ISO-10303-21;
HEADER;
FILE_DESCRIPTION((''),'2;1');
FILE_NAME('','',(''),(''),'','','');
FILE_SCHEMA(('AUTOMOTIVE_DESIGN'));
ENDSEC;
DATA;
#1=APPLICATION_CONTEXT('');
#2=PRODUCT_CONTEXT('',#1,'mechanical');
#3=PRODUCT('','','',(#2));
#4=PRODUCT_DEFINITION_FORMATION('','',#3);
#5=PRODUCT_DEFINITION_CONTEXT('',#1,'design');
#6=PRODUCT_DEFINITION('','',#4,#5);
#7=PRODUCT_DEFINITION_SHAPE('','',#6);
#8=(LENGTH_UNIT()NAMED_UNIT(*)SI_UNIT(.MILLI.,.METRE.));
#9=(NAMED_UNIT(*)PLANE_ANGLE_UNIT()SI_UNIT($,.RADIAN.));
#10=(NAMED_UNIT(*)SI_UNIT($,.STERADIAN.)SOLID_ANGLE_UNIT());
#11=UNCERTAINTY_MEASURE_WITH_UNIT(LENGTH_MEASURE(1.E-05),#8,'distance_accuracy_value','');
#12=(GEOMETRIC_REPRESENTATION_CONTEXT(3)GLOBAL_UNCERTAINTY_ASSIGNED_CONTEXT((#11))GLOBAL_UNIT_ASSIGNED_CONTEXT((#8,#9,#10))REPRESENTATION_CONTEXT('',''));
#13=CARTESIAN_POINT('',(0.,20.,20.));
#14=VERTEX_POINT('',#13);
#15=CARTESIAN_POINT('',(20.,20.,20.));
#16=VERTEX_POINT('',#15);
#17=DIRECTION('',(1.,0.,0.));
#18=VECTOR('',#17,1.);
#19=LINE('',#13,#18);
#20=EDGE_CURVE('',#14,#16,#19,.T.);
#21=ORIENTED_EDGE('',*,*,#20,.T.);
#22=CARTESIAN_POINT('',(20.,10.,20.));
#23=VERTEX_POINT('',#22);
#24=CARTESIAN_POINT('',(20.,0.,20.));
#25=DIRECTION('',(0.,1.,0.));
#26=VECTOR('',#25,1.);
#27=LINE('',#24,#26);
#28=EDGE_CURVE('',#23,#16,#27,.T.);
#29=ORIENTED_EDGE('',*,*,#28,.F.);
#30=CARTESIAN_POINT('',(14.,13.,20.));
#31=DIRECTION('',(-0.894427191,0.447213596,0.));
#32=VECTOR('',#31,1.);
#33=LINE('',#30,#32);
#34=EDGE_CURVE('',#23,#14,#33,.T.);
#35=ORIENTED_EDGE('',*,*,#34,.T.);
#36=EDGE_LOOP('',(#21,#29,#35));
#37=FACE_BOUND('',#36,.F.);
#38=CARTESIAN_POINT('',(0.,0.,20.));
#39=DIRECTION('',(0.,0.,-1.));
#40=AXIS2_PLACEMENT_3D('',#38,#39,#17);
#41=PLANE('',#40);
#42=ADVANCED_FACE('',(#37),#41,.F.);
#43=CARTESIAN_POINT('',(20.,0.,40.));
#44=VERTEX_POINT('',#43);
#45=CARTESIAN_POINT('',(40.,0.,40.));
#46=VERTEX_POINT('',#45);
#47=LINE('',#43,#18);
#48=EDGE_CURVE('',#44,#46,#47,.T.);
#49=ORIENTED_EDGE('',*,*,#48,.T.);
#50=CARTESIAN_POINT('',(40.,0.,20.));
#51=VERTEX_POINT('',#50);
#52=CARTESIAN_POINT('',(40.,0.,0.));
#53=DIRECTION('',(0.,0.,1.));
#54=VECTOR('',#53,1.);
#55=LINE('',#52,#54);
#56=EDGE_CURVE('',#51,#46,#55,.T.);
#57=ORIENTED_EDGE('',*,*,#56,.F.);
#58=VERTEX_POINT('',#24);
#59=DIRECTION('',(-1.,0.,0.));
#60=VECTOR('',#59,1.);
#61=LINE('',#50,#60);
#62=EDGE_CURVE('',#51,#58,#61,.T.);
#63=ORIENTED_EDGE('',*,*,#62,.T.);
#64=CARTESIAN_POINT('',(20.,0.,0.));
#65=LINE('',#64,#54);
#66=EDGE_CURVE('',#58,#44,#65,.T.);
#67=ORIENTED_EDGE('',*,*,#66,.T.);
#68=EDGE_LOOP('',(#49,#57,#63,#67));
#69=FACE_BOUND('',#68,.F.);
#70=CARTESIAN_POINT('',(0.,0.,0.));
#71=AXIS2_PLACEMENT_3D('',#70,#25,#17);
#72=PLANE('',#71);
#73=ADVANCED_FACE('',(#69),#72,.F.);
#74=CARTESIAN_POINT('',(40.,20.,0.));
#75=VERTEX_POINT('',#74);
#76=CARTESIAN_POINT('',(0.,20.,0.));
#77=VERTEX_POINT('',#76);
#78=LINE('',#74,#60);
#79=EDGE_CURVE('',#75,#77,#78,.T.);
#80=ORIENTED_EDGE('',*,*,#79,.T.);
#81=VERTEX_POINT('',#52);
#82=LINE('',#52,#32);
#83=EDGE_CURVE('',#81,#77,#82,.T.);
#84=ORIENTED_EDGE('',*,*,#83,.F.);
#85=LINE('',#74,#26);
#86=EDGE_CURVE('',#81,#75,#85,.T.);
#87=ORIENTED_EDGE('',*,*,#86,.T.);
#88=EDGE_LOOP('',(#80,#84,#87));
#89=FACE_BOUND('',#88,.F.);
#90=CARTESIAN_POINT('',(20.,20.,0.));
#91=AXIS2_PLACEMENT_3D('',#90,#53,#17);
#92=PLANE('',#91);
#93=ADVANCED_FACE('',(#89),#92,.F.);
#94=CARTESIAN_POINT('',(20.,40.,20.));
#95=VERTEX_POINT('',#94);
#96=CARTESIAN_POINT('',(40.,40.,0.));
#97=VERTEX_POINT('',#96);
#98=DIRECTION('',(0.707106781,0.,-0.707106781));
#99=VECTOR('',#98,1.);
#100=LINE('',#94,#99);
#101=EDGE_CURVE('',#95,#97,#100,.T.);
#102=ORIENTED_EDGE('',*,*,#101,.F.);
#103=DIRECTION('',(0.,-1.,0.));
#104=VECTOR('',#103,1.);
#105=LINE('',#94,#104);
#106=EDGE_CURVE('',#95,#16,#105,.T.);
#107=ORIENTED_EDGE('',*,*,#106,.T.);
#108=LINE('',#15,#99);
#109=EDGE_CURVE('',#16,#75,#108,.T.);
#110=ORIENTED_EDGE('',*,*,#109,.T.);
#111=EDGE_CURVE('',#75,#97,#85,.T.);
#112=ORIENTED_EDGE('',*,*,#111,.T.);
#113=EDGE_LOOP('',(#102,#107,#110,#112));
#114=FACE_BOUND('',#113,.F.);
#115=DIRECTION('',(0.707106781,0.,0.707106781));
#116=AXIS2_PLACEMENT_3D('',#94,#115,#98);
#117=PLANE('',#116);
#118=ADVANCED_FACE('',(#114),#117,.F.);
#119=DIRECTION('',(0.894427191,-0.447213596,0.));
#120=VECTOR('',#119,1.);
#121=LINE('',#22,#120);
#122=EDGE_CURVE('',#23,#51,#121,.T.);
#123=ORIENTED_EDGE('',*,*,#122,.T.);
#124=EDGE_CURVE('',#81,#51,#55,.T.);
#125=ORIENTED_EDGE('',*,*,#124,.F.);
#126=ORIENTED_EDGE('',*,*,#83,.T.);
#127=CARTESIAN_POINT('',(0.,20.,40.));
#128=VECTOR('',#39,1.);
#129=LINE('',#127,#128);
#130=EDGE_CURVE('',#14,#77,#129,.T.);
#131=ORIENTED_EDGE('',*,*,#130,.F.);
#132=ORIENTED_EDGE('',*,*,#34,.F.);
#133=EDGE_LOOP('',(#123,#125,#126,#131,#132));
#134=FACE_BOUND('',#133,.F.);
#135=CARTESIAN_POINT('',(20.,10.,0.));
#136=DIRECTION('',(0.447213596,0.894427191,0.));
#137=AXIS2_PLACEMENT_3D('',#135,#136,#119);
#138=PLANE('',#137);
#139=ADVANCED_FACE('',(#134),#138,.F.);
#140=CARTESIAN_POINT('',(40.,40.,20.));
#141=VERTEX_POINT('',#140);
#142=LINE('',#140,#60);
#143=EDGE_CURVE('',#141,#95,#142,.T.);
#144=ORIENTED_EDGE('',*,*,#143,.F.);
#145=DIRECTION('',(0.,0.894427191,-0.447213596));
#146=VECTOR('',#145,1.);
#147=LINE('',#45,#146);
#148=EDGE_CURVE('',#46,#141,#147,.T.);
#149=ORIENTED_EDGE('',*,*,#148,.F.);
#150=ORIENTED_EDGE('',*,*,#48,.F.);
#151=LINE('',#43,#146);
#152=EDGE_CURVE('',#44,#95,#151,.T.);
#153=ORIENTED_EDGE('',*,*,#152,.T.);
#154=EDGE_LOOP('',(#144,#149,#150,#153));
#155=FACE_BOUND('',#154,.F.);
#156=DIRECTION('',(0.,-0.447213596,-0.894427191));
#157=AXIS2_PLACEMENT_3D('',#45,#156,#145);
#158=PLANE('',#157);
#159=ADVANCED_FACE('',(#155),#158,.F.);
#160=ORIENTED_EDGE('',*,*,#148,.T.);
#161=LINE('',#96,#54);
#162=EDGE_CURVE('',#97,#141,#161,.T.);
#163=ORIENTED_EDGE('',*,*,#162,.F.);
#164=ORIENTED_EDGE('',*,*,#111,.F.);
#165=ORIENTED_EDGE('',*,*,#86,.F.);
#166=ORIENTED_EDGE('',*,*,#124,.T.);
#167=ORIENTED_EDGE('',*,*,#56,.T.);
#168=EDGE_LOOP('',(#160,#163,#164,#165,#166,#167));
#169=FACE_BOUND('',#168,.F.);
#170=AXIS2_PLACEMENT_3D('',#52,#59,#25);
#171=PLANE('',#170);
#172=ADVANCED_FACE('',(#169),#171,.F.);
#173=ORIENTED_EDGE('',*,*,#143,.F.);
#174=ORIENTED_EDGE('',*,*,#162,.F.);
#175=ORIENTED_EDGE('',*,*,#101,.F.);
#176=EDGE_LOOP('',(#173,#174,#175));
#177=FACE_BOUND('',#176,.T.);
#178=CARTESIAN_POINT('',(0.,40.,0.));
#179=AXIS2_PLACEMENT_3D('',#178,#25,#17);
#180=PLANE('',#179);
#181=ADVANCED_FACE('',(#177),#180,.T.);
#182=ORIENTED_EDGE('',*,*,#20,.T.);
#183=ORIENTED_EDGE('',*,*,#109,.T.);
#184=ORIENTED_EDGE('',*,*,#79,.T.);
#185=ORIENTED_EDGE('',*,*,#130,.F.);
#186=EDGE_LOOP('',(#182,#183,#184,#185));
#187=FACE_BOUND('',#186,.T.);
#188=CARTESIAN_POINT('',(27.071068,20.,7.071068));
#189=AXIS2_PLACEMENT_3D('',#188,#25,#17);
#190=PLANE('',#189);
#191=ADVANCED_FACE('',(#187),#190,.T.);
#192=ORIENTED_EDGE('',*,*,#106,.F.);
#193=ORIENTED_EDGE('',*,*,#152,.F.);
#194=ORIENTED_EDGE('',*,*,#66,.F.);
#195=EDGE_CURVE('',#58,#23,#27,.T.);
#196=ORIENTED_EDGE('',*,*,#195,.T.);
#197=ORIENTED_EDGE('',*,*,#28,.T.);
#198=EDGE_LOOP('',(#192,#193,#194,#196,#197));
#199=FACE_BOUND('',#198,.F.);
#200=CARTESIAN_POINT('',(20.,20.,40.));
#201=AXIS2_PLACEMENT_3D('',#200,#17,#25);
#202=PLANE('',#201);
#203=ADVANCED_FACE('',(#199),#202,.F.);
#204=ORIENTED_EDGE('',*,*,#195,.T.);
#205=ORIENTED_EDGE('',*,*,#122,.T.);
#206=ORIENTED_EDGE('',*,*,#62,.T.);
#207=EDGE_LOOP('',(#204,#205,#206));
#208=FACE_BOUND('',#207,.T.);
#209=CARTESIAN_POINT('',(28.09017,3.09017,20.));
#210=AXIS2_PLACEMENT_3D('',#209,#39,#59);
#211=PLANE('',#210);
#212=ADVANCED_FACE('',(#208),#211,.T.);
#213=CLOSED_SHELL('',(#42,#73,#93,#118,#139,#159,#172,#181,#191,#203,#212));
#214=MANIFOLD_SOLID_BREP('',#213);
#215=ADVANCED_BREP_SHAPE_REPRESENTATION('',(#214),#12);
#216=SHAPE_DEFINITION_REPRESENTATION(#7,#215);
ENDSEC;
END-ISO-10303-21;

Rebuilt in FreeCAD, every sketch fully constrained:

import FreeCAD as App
import Part
import Sketcher

V = App.Vector
Q = App.Units.Quantity


def add_polygon(sketch, points):
    """Adds a closed chain of lines whose ends are joined by coincident constraints."""
    first, n = sketch.GeometryCount, len(points)
    for a, b in zip(points, points[1:] + points[:1]):
        sketch.addGeometry(Part.LineSegment(App.Vector(*a, 0), App.Vector(*b, 0)), False)
    for i in range(n):
        sketch.addConstraint(Sketcher.Constraint("Coincident", first + i, 2, first + (i + 1) % n, 1))

doc = App.newDocument("Part")
body = doc.addObject("PartDesign::Body", "Body")

sketch1 = body.newObject("Sketcher::SketchObject", "Sketch")
sketch1.AttachmentSupport = (doc.getObject("XY_Plane"), [""])
sketch1.MapMode = "FlatFace"
add_polygon(sketch1, [(0, 40), (0, 0), (40, 0), (40, 40)])
sketch1.addConstraint([
    Sketcher.Constraint("Vertical", 0),
    Sketcher.Constraint("Horizontal", 1),
    Sketcher.Constraint("Vertical", 2),
    Sketcher.Constraint("Horizontal", 3),
    Sketcher.Constraint("Coincident", 0, 2, -1, 1),
    Sketcher.Constraint("Equal", 3, 0),
    Sketcher.Constraint("DistanceX", 1, 1, 1, 2, Q("40 mm")),
])
pad1 = body.newObject("PartDesign::Pad", "Pad")
pad1.Profile = sketch1
pad1.Length = 40

sketch2 = body.newObject("Sketcher::SketchObject", "Sketch001")
sketch2.AttachmentSupport = (doc.getObject("XY_Plane"), [""])
sketch2.MapMode = "FlatFace"
sketch2.AttachmentOffset = App.Placement(V(0, 0, 40), App.Rotation())
add_polygon(sketch2, [(0, 40), (0, 20), (20, 20), (20, 40)])
sketch2.addConstraint([
    Sketcher.Constraint("Vertical", 0),
    Sketcher.Constraint("Horizontal", 1),
    Sketcher.Constraint("Vertical", 2),
    Sketcher.Constraint("Horizontal", 3),
    Sketcher.Constraint("PointOnObject", 0, 2, -2),
    Sketcher.Constraint("Equal", 3, 0),
    Sketcher.Constraint("DistanceX", 1, 1, 1, 2, Q("20 mm")),
    Sketcher.Constraint("DistanceY", -1, 1, 0, 2, Q("20 mm")),
])
pocket1 = body.newObject("PartDesign::Pocket", "Pocket")
pocket1.Profile = sketch2
pocket1.Length = 40

sketch3 = body.newObject("Sketcher::SketchObject", "Sketch002")
sketch3.AttachmentSupport = (doc.getObject("XY_Plane"), [""])
sketch3.MapMode = "FlatFace"
sketch3.AttachmentOffset = App.Placement(V(0, 0, 40), App.Rotation())
add_polygon(sketch3, [(0, 0), (20, 0), (20, 10), (0, 20)])
sketch3.addConstraint([
    Sketcher.Constraint("Horizontal", 0),
    Sketcher.Constraint("Vertical", 1),
    Sketcher.Constraint("Vertical", 3),
    Sketcher.Constraint("Coincident", 3, 2, -1, 1),
    Sketcher.Constraint("Equal", 0, 3),
    Sketcher.Constraint("DistanceX", 0, 1, 0, 2, Q("20 mm")),
    Sketcher.Constraint("DistanceY", 1, 1, 1, 2, Q("10 mm")),
])
pocket2 = body.newObject("PartDesign::Pocket", "Pocket001")
pocket2.Profile = sketch3
pocket2.Length = 40

sketch4 = body.newObject("Sketcher::SketchObject", "Sketch003")
sketch4.AttachmentSupport = (doc.getObject("YZ_Plane"), [""])
sketch4.MapMode = "FlatFace"
sketch4.AttachmentOffset = App.Placement(V(0, 0, 40), App.Rotation())
add_polygon(sketch4, [(0, 40), (40, 20), (40, 40)])
sketch4.addConstraint([
    Sketcher.Constraint("Vertical", 1),
    Sketcher.Constraint("Horizontal", 2),
    Sketcher.Constraint("PointOnObject", 2, 2, -2),
    Sketcher.Constraint("DistanceX", 2, 2, 2, 1, Q("40 mm")),
    Sketcher.Constraint("DistanceY", 1, 1, 1, 2, Q("20 mm")),
    Sketcher.Constraint("DistanceY", -1, 1, 0, 2, Q("20 mm")),
])
pocket3 = body.newObject("PartDesign::Pocket", "Pocket002")
pocket3.Profile = sketch4
pocket3.Length = 40

sketch5 = body.newObject("Sketcher::SketchObject", "Sketch004")
sketch5.AttachmentSupport = (doc.getObject("XZ_Plane"), [""])
sketch5.MapMode = "FlatFace"
add_polygon(sketch5, [(0, 40), (0, 20), (20, 20), (20, 40)])
sketch5.addConstraint([
    Sketcher.Constraint("Vertical", 0),
    Sketcher.Constraint("Horizontal", 1),
    Sketcher.Constraint("Vertical", 2),
    Sketcher.Constraint("Horizontal", 3),
    Sketcher.Constraint("PointOnObject", 0, 2, -2),
    Sketcher.Constraint("Equal", 3, 0),
    Sketcher.Constraint("DistanceX", 1, 1, 1, 2, Q("20 mm")),
    Sketcher.Constraint("DistanceY", -1, 1, 0, 2, Q("20 mm")),
])
pocket4 = body.newObject("PartDesign::Pocket", "Pocket003")
pocket4.Profile = sketch5
pocket4.Length = 40

sketch6 = body.newObject("Sketcher::SketchObject", "Sketch005")
sketch6.AttachmentSupport = (doc.getObject("XY_Plane"), [""])
sketch6.MapMode = "FlatFace"
add_polygon(sketch6, [(20, 10), (40, 0), (20, 0)])
sketch6.addConstraint([
    Sketcher.Constraint("Horizontal", 1),
    Sketcher.Constraint("Vertical", 2),
    Sketcher.Constraint("PointOnObject", 0, 2, -1),
    Sketcher.Constraint("DistanceX", 1, 2, 1, 1, Q("20 mm")),
    Sketcher.Constraint("DistanceY", 2, 1, 2, 2, Q("10 mm")),
    Sketcher.Constraint("DistanceX", -1, 1, 0, 2, Q("40 mm")),
])
pocket5 = body.newObject("PartDesign::Pocket", "Pocket004")
pocket5.Profile = sketch6
pocket5.Length = 20
pocket5.Reversed = True

sketch7 = body.newObject("Sketcher::SketchObject", "Sketch006")
sketch7.AttachmentSupport = (doc.getObject("XZ_Plane"), [""])
sketch7.MapMode = "FlatFace"
sketch7.AttachmentOffset = App.Placement(V(0, 0, -40), App.Rotation())
add_polygon(sketch7, [(20, 20), (40, 0), (20, 0)])
sketch7.addConstraint([
    Sketcher.Constraint("Horizontal", 1),
    Sketcher.Constraint("Vertical", 2),
    Sketcher.Constraint("PointOnObject", 0, 2, -1),
    Sketcher.Constraint("Equal", 1, 2),
    Sketcher.Constraint("DistanceX", 1, 2, 1, 1, Q("20 mm")),
    Sketcher.Constraint("DistanceX", -1, 1, 0, 2, Q("40 mm")),
])
pocket6 = body.newObject("PartDesign::Pocket", "Pocket005")
pocket6.Profile = sketch7
pocket6.Length = 20
pocket6.Reversed = True

doc.recompute()
